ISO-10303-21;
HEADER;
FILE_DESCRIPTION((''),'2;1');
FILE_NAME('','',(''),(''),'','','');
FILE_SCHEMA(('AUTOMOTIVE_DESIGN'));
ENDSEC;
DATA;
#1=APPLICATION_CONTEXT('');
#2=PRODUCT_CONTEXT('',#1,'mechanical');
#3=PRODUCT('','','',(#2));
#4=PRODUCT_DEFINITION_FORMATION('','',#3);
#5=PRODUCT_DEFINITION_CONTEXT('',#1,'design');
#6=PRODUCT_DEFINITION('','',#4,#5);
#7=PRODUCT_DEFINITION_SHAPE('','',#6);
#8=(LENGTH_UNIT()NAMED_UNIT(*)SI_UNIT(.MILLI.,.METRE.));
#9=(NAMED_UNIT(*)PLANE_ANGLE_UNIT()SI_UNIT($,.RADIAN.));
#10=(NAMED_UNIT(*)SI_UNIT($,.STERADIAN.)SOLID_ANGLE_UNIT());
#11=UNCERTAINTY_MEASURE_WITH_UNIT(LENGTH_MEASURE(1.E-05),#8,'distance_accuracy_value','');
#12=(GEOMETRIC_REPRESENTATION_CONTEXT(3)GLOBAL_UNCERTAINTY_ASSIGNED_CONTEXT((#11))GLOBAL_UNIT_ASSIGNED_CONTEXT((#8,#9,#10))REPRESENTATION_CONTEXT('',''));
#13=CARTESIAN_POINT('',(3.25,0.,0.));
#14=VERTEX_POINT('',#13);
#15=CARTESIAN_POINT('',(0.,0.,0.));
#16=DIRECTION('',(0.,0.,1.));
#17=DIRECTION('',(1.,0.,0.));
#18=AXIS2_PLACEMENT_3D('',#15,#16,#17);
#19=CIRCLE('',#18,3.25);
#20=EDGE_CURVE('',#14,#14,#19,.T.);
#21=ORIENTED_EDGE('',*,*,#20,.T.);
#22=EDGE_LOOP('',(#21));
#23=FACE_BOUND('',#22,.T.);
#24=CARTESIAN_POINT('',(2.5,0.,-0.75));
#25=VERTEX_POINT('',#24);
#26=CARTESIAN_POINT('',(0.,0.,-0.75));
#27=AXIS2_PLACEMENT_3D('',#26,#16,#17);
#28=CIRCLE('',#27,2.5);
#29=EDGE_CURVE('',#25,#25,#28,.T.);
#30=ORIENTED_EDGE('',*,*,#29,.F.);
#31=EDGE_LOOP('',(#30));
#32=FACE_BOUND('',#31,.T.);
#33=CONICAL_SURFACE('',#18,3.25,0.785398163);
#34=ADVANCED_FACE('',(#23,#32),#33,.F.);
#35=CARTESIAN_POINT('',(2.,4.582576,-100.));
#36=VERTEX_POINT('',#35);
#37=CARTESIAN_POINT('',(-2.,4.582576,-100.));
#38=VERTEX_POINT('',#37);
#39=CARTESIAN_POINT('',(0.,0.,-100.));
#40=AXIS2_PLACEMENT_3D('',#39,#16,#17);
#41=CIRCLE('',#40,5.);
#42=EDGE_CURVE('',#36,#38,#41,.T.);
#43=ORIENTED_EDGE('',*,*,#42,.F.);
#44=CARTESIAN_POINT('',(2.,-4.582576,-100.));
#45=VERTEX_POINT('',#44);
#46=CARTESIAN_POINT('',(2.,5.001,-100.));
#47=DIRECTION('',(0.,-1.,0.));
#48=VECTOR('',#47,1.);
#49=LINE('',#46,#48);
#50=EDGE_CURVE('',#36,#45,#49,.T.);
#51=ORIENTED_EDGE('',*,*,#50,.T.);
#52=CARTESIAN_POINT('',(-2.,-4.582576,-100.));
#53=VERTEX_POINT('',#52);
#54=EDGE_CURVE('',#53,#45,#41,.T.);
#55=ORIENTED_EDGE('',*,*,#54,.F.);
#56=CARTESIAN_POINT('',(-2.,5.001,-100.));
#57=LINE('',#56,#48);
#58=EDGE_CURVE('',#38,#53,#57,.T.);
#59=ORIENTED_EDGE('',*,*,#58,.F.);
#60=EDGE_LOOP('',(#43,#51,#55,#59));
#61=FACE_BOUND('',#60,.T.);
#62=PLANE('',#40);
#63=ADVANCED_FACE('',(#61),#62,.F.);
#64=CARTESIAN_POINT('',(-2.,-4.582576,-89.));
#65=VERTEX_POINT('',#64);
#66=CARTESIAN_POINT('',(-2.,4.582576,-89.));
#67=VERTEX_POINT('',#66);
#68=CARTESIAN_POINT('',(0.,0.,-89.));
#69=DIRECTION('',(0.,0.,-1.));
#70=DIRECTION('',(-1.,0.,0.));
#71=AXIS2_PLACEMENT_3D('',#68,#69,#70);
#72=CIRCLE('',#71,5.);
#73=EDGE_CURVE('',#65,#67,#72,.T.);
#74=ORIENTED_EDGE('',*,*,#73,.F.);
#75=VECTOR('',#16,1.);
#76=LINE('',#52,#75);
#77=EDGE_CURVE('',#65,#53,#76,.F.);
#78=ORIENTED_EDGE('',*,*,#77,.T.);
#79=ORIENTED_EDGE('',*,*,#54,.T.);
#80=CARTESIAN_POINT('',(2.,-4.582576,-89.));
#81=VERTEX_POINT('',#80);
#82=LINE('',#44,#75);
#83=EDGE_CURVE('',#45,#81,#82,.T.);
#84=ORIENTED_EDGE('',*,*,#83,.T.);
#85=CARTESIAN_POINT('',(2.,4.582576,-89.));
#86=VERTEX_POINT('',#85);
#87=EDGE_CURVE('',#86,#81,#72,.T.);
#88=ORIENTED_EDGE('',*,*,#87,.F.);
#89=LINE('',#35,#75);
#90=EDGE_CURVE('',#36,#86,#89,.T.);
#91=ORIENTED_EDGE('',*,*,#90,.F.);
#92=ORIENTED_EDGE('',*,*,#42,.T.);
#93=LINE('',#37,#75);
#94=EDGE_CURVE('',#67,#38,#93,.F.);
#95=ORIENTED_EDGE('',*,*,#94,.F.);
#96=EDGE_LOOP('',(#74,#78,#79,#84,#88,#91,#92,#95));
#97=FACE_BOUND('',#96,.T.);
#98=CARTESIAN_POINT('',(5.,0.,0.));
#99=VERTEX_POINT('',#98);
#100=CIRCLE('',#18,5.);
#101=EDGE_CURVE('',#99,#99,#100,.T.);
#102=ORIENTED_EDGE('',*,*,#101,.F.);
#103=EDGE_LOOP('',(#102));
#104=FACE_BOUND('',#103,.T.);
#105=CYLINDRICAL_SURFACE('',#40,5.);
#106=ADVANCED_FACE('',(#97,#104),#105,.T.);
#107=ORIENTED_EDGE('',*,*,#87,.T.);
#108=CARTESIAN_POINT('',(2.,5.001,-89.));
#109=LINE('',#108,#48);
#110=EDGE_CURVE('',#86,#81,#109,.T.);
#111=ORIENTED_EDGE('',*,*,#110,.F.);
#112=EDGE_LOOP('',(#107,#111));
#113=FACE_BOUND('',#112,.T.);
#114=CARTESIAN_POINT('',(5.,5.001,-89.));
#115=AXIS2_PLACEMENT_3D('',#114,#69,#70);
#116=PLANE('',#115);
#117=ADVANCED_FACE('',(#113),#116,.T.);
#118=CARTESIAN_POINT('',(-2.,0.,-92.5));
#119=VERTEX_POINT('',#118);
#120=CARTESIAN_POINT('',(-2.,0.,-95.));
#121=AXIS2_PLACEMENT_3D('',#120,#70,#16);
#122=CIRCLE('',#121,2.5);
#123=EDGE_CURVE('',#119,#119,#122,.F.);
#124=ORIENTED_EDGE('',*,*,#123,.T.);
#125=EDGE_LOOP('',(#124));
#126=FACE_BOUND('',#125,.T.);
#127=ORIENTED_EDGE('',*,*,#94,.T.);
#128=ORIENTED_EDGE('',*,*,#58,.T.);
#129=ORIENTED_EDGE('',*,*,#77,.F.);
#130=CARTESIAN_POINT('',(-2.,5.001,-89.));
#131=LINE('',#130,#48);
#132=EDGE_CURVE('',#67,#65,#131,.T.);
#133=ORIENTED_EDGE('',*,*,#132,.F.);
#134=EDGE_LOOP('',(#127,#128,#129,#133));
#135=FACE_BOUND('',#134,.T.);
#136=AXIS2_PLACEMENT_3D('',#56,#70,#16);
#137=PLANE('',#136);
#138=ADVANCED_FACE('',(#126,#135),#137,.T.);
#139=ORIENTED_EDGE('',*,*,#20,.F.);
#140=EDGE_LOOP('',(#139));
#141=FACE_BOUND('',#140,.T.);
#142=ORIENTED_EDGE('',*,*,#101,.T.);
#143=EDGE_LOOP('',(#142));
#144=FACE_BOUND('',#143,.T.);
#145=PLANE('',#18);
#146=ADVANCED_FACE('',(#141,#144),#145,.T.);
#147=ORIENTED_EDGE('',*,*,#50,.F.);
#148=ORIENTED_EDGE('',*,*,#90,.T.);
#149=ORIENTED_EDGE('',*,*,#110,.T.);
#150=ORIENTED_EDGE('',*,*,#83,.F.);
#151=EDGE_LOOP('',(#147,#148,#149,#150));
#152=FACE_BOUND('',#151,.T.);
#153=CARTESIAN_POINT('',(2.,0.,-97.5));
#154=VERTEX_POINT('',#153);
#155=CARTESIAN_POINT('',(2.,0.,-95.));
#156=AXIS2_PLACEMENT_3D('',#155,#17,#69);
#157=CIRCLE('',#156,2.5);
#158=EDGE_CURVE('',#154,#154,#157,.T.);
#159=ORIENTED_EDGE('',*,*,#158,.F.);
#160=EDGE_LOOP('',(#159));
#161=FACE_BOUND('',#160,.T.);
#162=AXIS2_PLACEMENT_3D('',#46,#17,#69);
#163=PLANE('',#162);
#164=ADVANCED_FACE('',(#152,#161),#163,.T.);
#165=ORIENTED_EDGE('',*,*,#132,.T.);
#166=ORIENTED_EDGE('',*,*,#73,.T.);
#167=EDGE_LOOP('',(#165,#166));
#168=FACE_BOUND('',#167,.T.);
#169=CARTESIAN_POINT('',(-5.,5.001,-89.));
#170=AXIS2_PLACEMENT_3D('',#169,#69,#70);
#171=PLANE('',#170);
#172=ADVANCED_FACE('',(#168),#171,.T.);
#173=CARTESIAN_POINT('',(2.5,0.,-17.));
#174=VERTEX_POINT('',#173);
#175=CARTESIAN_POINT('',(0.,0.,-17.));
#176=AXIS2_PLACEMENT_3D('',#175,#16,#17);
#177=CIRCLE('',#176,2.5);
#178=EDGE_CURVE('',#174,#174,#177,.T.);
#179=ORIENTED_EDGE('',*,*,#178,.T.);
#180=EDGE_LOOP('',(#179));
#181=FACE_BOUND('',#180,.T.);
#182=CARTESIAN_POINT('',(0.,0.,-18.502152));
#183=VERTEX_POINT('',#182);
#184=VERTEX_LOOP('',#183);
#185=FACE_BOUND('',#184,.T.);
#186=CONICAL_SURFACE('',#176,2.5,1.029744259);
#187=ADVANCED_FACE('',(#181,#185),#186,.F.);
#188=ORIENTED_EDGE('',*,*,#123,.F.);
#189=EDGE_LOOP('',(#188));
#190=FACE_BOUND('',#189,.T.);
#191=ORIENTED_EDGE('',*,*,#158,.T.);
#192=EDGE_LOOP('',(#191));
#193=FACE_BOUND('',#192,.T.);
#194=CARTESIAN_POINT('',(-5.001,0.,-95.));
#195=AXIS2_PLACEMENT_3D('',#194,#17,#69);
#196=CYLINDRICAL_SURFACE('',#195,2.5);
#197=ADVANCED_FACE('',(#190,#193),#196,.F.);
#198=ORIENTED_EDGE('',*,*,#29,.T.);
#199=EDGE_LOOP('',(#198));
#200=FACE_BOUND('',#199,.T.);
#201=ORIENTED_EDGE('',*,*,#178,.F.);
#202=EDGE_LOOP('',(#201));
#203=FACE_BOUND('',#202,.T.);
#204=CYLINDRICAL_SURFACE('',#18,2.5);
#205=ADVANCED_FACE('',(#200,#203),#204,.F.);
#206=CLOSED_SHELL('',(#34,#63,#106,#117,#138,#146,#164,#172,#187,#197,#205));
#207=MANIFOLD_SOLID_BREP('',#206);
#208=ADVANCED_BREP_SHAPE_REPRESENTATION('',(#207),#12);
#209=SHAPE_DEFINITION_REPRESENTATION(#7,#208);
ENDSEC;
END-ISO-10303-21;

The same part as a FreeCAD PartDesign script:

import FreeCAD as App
import Part
import Sketcher
Q = App.Units.Quantity

doc = App.newDocument("Part")
body = doc.addObject("PartDesign::Body", "Body")

sketch1 = body.newObject("Sketcher::SketchObject", "Sketch")
sketch1.AttachmentSupport = (doc.getObject("XY_Plane"), [""])
sketch1.MapMode = "FlatFace"
sketch1.addGeometry(Part.Circle(App.Vector(0, 0, 0), App.Vector(0, 0, 1), 5), False)
sketch1.addConstraint([
    Sketcher.Constraint("Coincident", 0, 3, -1, 1),
    Sketcher.Constraint("Diameter", 0, Q("10 mm")),
])
pad1 = body.newObject("PartDesign::Pad", "Pad")
pad1.Profile = sketch1
pad1.Length = 100
pad1.Reversed = True

sketch2 = body.newObject("Sketcher::SketchObject", "Sketch001")
sketch2.AttachmentSupport = (doc.getObject("XZ_Plane"), [""])
sketch2.MapMode = "FlatFace"
sketch2.addGeometry([
    Part.LineSegment(App.Vector(-5, -100, 0), App.Vector(-5, -89, 0)),
    Part.LineSegment(App.Vector(-5, -89, 0), App.Vector(-2, -89, 0)),
    Part.LineSegment(App.Vector(-2, -89, 0), App.Vector(-2, -100, 0)),
    Part.LineSegment(App.Vector(-2, -100, 0), App.Vector(-5, -100, 0)),
], False)
sketch2.addConstraint([
    Sketcher.Constraint("Coincident", 0, 2, 1, 1),
    Sketcher.Constraint("Coincident", 1, 2, 2, 1),
    Sketcher.Constraint("Coincident", 2, 2, 3, 1),
    Sketcher.Constraint("Coincident", 3, 2, 0, 1),
    Sketcher.Constraint("Vertical", 0),
    Sketcher.Constraint("Horizontal", 1),
    Sketcher.Constraint("Vertical", 2),
    Sketcher.Constraint("Horizontal", 3),
    Sketcher.Constraint("DistanceX", 1, 1, 1, 2, Q("3 mm")),
    Sketcher.Constraint("DistanceY", 0, 1, 0, 2, Q("11 mm")),
    Sketcher.Constraint("DistanceX", 0, 2, -1, 1, Q("5 mm")),
    Sketcher.Constraint("DistanceY", 0, 2, -1, 1, Q("89 mm")),
])
pocket1 = body.newObject("PartDesign::Pocket", "Pocket")
pocket1.Profile = sketch2
pocket1.Length = 4.582576
pocket1.Reversed = True

sketch3 = body.newObject("Sketcher::SketchObject", "Sketch002")
sketch3.AttachmentSupport = (doc.getObject("XZ_Plane"), [""])
sketch3.MapMode = "FlatFace"
sketch3.addGeometry([
    Part.LineSegment(App.Vector(2, -100, 0), App.Vector(2, -89, 0)),
    Part.LineSegment(App.Vector(2, -89, 0), App.Vector(5, -89, 0)),
    Part.LineSegment(App.Vector(5, -89, 0), App.Vector(5, -100, 0)),
    Part.LineSegment(App.Vector(5, -100, 0), App.Vector(2, -100, 0)),
], False)
sketch3.addConstraint([
    Sketcher.Constraint("Coincident", 0, 2, 1, 1),
    Sketcher.Constraint("Coincident", 1, 2, 2, 1),
    Sketcher.Constraint("Coincident", 2, 2, 3, 1),
    Sketcher.Constraint("Coincident", 3, 2, 0, 1),
    Sketcher.Constraint("Vertical", 0),
    Sketcher.Constraint("Horizontal", 1),
    Sketcher.Constraint("Vertical", 2),
    Sketcher.Constraint("Horizontal", 3),
    Sketcher.Constraint("DistanceX", 1, 1, 1, 2, Q("3 mm")),
    Sketcher.Constraint("DistanceY", 0, 1, 0, 2, Q("11 mm")),
    Sketcher.Constraint("DistanceX", -1, 1, 0, 2, Q("2 mm")),
    Sketcher.Constraint("DistanceY", 0, 2, -1, 1, Q("89 mm")),
])
pocket2 = body.newObject("PartDesign::Pocket", "Pocket001")
pocket2.Profile = sketch3
pocket2.Length = 4.582576
pocket2.Reversed = True

sketch4 = body.newObject("Sketcher::SketchObject", "Sketch003")
sketch4.AttachmentSupport = (doc.getObject("XZ_Plane"), [""])
sketch4.MapMode = "FlatFace"
sketch4.addGeometry([
    Part.LineSegment(App.Vector(-5, -100, 0), App.Vector(-5, -89, 0)),
    Part.LineSegment(App.Vector(-5, -89, 0), App.Vector(-2, -89, 0)),
    Part.LineSegment(App.Vector(-2, -89, 0), App.Vector(-2, -100, 0)),
    Part.LineSegment(App.Vector(-2, -100, 0), App.Vector(-5, -100, 0)),
], False)
sketch4.addConstraint([
    Sketcher.Constraint("Coincident", 0, 2, 1, 1),
    Sketcher.Constraint("Coincident", 1, 2, 2, 1),
    Sketcher.Constraint("Coincident", 2, 2, 3, 1),
    Sketcher.Constraint("Coincident", 3, 2, 0, 1),
    Sketcher.Constraint("Vertical", 0),
    Sketcher.Constraint("Horizontal", 1),
    Sketcher.Constraint("Vertical", 2),
    Sketcher.Constraint("Horizontal", 3),
    Sketcher.Constraint("DistanceX", 1, 1, 1, 2, Q("3 mm")),
    Sketcher.Constraint("DistanceY", 0, 1, 0, 2, Q("11 mm")),
    Sketcher.Constraint("DistanceX", 0, 2, -1, 1, Q("5 mm")),
    Sketcher.Constraint("DistanceY", 0, 2, -1, 1, Q("89 mm")),
])
pocket3 = body.newObject("PartDesign::Pocket", "Pocket002")
pocket3.Profile = sketch4
pocket3.Length = 4.582576

sketch5 = body.newObject("Sketcher::SketchObject", "Sketch004")
sketch5.AttachmentSupport = (doc.getObject("XZ_Plane"), [""])
sketch5.MapMode = "FlatFace"
sketch5.addGeometry([
    Part.LineSegment(App.Vector(2, -100, 0), App.Vector(2, -89, 0)),
    Part.LineSegment(App.Vector(2, -89, 0), App.Vector(5, -89, 0)),
    Part.LineSegment(App.Vector(5, -89, 0), App.Vector(5, -100, 0)),
    Part.LineSegment(App.Vector(5, -100, 0), App.Vector(2, -100, 0)),
], False)
sketch5.addConstraint([
    Sketcher.Constraint("Coincident", 0, 2, 1, 1),
    Sketcher.Constraint("Coincident", 1, 2, 2, 1),
    Sketcher.Constraint("Coincident", 2, 2, 3, 1),
    Sketcher.Constraint("Coincident", 3, 2, 0, 1),
    Sketcher.Constraint("Vertical", 0),
    Sketcher.Constraint("Horizontal", 1),
    Sketcher.Constraint("Vertical", 2),
    Sketcher.Constraint("Horizontal", 3),
    Sketcher.Constraint("DistanceX", 1, 1, 1, 2, Q("3 mm")),
    Sketcher.Constraint("DistanceY", 0, 1, 0, 2, Q("11 mm")),
    Sketcher.Constraint("DistanceX", -1, 1, 0, 2, Q("2 mm")),
    Sketcher.Constraint("DistanceY", 0, 2, -1, 1, Q("89 mm")),
])
pocket4 = body.newObject("PartDesign::Pocket", "Pocket003")
pocket4.Profile = sketch5
pocket4.Length = 4.582576

sketch6 = body.newObject("Sketcher::SketchObject", "Sketch005")
sketch6.AttachmentSupport = (doc.getObject("YZ_Plane"), [""])
sketch6.MapMode = "FlatFace"
sketch6.AttachmentOffset = App.Placement(App.Vector(0, 0, 2), App.Rotation())
sketch6.addGeometry(Part.Circle(App.Vector(0, -95, 0), App.Vector(0, 0, 1), 2.5), False)
sketch6.addConstraint([
    Sketcher.Constraint("PointOnObject", 0, 3, -2),
    Sketcher.Constraint("Diameter", 0, Q("5 mm")),
    Sketcher.Constraint("DistanceY", 0, 3, -1, 1, Q("95 mm")),
])
pocket5 = body.newObject("PartDesign::Pocket", "Pocket004")
pocket5.Profile = sketch6
pocket5.Type = "UpToFirst"

sketch7 = body.newObject("Sketcher::SketchObject", "Sketch006")
sketch7.AttachmentSupport = (doc.getObject("XY_Plane"), [""])
sketch7.MapMode = "FlatFace"
sketch7.addGeometry(Part.Circle(App.Vector(0, 0, 0), App.Vector(0, 0, 1), 2.5), False)
sketch7.addConstraint([
    Sketcher.Constraint("Coincident", 0, 3, -1, 1),
    Sketcher.Constraint("Diameter", 0, Q("5 mm")),
])
doc.recompute()
hole = body.newObject("PartDesign::Hole", "Hole")
hole.Profile = sketch7
hole.ThreadType = "None"
hole.Diameter = 5
hole.DepthType = "Dimension"
hole.Depth = 17
hole.DrillPoint = "Angled"
hole.DrillPointAngle = 118
hole.HoleCutType = "Countersink"
hole.HoleCutDiameter = 6.5
hole.HoleCutCountersinkAngle = 90

doc.recompute()
